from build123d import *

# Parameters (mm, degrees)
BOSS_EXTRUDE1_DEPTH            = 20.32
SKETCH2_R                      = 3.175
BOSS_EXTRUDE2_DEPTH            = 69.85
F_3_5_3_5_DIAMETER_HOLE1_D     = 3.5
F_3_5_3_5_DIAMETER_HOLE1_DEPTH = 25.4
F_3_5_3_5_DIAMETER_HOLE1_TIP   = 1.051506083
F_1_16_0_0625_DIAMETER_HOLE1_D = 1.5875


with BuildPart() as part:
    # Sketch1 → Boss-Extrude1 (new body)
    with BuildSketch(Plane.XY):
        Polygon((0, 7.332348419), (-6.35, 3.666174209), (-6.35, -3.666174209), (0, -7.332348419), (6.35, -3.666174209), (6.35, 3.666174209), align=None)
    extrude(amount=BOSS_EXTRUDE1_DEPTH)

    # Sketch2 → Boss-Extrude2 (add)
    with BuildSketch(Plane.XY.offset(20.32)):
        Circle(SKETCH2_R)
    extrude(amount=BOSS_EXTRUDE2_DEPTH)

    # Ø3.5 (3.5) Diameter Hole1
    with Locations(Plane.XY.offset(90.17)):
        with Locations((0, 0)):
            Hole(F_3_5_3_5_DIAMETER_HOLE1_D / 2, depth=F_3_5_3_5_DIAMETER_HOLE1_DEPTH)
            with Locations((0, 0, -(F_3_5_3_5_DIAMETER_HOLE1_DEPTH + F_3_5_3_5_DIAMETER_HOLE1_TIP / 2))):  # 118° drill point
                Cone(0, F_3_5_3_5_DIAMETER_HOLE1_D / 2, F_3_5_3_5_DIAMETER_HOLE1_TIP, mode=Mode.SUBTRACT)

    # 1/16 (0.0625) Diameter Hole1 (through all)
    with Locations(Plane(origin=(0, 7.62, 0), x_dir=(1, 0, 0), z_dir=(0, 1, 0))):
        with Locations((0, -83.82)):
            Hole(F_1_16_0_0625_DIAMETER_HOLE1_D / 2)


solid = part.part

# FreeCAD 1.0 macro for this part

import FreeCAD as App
import Part
import Sketcher
from FreeCAD import Vector
Q = App.Units.Quantity

doc = App.newDocument("Part")
body = doc.addObject("PartDesign::Body", "Body")

# Sketch on XY plane
sketch1 = body.newObject("Sketcher::SketchObject", "Sketch")
sketch1.AttachmentSupport = (doc.getObject("XY_Plane"), [""])
sketch1.MapMode = "FlatFace"
sketch1.addGeometry(Part.LineSegment(Vector(0, 7.332348, 0), Vector(-6.35, 3.666174, 0)), False)
sketch1.addGeometry(Part.LineSegment(Vector(-6.35, 3.666174, 0), Vector(-6.35, -3.666174, 0)), False)
sketch1.addGeometry(Part.LineSegment(Vector(-6.35, -3.666174, 0), Vector(0, -7.332348, 0)), False)
sketch1.addGeometry(Part.LineSegment(Vector(0, -7.332348, 0), Vector(6.35, -3.666174, 0)), False)
sketch1.addGeometry(Part.LineSegment(Vector(6.35, -3.666174, 0), Vector(6.35, 3.666174, 0)), False)
sketch1.addGeometry(Part.LineSegment(Vector(6.35, 3.666174, 0), Vector(0, 7.332348, 0)), False)
sketch1.addConstraint(Sketcher.Constraint("Coincident", 0, 2, 1, 1))
sketch1.addConstraint(Sketcher.Constraint("Coincident", 1, 2, 2, 1))
sketch1.addConstraint(Sketcher.Constraint("Coincident", 2, 2, 3, 1))
sketch1.addConstraint(Sketcher.Constraint("Coincident", 3, 2, 4, 1))
sketch1.addConstraint(Sketcher.Constraint("Coincident", 4, 2, 5, 1))
sketch1.addConstraint(Sketcher.Constraint("Coincident", 5, 2, 0, 1))
sketch1.addConstraint(Sketcher.Constraint("Vertical", 1))
sketch1.addConstraint(Sketcher.Constraint("Vertical", 4))
sketch1.addConstraint(Sketcher.Constraint("Symmetric", 0, 2, 3, 2, -1, 1))
sketch1.addConstraint(Sketcher.Constraint("Symmetric", 2, 2, 5, 2, -1, 1))
sketch1.addConstraint(Sketcher.Constraint("PointOnObject", 2, 2, -2))
sketch1.addConstraint(Sketcher.Constraint("Parallel", 2, 5))
sketch1.addConstraint(Sketcher.Constraint("Horizontal", 1, 2, 3, 2))
sketch1.addConstraint(Sketcher.Constraint("Angle", 0, Q("-150 deg")))
sketch1.addConstraint(Sketcher.Constraint("DistanceX", 1, 2, 3, 2, Q("0.5 in")))
sketch1.addConstraint(Sketcher.Constraint("DistanceY", 1, 2, 1, 1, 7.332348))
pad1 = body.newObject("PartDesign::Pad", "Pad")
pad1.Profile = sketch1
pad1.Length = Q("0.8 in")

# Sketch on XY plane
sketch2 = body.newObject("Sketcher::SketchObject", "Sketch001")
sketch2.AttachmentSupport = (doc.getObject("XY_Plane"), [""])
sketch2.MapMode = "FlatFace"
sketch2.AttachmentOffset = App.Placement(Vector(0, 0, 0.8 * 25.4), App.Rotation())
sketch2.addGeometry(Part.Circle(Vector(0, 0, 0), Vector(0, 0, 1), 3.175), False)
sketch2.addConstraint(Sketcher.Constraint("Coincident", 0, 3, -1, 1))
sketch2.addConstraint(Sketcher.Constraint("Diameter", 0, Q("0.25 in")))
pad2 = body.newObject("PartDesign::Pad", "Pad001")
pad2.Profile = sketch2
pad2.Length = Q("2.75 in")

# Sketch on XY plane
sketch3 = body.newObject("Sketcher::SketchObject", "Sketch002")
sketch3.AttachmentSupport = (doc.getObject("XY_Plane"), [""])
sketch3.MapMode = "FlatFace"
sketch3.AttachmentOffset = App.Placement(Vector(0, 0, 3.55 * 25.4), App.Rotation())
sketch3.addGeometry(Part.Circle(Vector(0, 0, 0), Vector(0, 0, 1), 1.75), False)
sketch3.addConstraint(Sketcher.Constraint("Coincident", 0, 3, -1, 1))
sketch3.addConstraint(Sketcher.Constraint("Diameter", 0, 3.5))
doc.recompute()
hole = body.newObject("PartDesign::Hole", "Hole")
hole.Profile = sketch3
hole.ThreadType = "None"
hole.Diameter = 3.5
hole.DepthType = "Dimension"
hole.Depth = Q("1 in")
hole.DrillPoint = "Angled"
hole.DrillPointAngle = 118

# Sketch on XZ plane
sketch4 = body.newObject("Sketcher::SketchObject", "Sketch003")
sketch4.AttachmentSupport = (doc.getObject("XZ_Plane"), [""])
sketch4.MapMode = "FlatFace"
sketch4.AttachmentOffset = App.Placement(Vector(0, 0, -0.3 * 25.4), App.Rotation())
sketch4.addGeometry(Part.Circle(Vector(0, 83.82, 0), Vector(0, 0, 1), 0.79375), False)
sketch4.addConstraint(Sketcher.Constraint("PointOnObject", 0, 3, -2))
sketch4.addConstraint(Sketcher.Constraint("Diameter", 0, Q("0.0625 in")))
sketch4.addConstraint(Sketcher.Constraint("DistanceY", -1, 1, 0, 3, Q("3.3 in")))
doc.recompute()
hole2 = body.newObject("PartDesign::Hole", "Hole001")
hole2.Profile = sketch4
hole2.ThreadType = "None"
hole2.Diameter = Q("0.0625 in")
hole2.DepthType = "ThroughAll"
hole2.Reversed = True

doc.recompute()
